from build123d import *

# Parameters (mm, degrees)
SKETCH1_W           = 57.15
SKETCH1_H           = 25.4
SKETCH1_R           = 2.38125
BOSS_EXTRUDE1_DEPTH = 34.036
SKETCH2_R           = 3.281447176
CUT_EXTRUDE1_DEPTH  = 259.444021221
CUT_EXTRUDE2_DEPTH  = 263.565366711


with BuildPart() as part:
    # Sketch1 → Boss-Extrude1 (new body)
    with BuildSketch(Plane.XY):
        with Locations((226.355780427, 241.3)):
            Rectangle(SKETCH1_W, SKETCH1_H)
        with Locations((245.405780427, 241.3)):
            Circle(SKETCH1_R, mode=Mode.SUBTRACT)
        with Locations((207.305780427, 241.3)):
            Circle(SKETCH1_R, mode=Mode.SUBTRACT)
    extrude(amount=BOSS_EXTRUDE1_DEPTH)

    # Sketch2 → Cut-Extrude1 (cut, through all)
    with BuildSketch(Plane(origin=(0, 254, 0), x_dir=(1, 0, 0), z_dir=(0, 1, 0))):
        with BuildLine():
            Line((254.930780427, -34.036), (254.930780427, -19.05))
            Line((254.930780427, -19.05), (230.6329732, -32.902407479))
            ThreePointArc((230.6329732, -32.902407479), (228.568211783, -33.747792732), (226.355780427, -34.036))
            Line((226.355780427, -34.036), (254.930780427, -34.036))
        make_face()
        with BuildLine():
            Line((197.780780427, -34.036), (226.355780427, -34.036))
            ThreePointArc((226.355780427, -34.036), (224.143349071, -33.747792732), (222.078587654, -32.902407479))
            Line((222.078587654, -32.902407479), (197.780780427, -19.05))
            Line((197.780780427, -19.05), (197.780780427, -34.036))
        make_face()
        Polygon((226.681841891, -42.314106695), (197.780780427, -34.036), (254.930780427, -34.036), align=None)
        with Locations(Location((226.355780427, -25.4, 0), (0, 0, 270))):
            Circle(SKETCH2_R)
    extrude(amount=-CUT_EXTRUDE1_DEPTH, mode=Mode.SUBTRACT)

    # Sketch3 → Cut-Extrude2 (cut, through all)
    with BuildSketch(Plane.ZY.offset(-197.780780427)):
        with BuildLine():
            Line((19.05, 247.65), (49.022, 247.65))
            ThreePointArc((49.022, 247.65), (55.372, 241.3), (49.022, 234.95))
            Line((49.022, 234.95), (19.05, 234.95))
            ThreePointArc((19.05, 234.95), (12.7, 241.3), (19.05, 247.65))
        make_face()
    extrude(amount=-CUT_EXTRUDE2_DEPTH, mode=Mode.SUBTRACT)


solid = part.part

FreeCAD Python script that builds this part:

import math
import FreeCAD as App
import Part
import Sketcher

V = App.Vector
Q = App.Units.Quantity


def add_polygon(sketch, points):
    """Adds a closed chain of lines whose ends are joined by coincident constraints."""
    first, n = sketch.GeometryCount, len(points)
    for a, b in zip(points, points[1:] + points[:1]):
        sketch.addGeometry(Part.LineSegment(App.Vector(*a, 0), App.Vector(*b, 0)), False)
    for i in range(n):
        sketch.addConstraint(Sketcher.Constraint("Coincident", first + i, 2, first + (i + 1) % n, 1))

doc = App.newDocument("Part")
body = doc.addObject("PartDesign::Body", "Body")

# Sketch on XY plane
sketch1 = body.newObject("Sketcher::SketchObject", "Sketch")
sketch1.AttachmentSupport = (doc.getObject("XY_Plane"), [""])
sketch1.MapMode = "FlatFace"
add_polygon(sketch1, [(197.8, 254), (197.8, 228.6), (254.9, 228.6), (254.9, 254)])  # lines 0-3
sketch1.addGeometry(Part.Circle(V(207.3, 241.3, 0), V(0, 0, 1), 2.4), False)  # 4
sketch1.addGeometry(Part.Circle(V(245.4, 241.3, 0), V(0, 0, 1), 2.4), False)  # 5
sketch1.addConstraint(Sketcher.Constraint("Vertical", 0))
sketch1.addConstraint(Sketcher.Constraint("Horizontal", 1))
sketch1.addConstraint(Sketcher.Constraint("Vertical", 2))
sketch1.addConstraint(Sketcher.Constraint("Horizontal", 3))
sketch1.addConstraint(Sketcher.Constraint("Equal", 4, 5))
sketch1.addConstraint(Sketcher.Constraint("Horizontal", 4, 3, 5, 3))
sketch1.addConstraint(Sketcher.Constraint("DistanceY", 0, 2, 0, 1, Q("1 in")))
sketch1.addConstraint(Sketcher.Constraint("Diameter", 4, Q("0.1875 in")))
sketch1.addConstraint(Sketcher.Constraint("DistanceY", -1, 1, 0, 2, Q("9 in")))
sketch1.addConstraint(Sketcher.Constraint("DistanceX", 1, 1, 1, 2, Q("2.25 in")))
sketch1.addConstraint(Sketcher.Constraint("DistanceY", -1, 1, 4, 3, Q("9.5 in")))
sketch1.addConstraint(Sketcher.Constraint("DistanceX", 4, 3, 5, 3, Q("1.5 in")))
sketch1.addConstraint(Sketcher.Constraint("DistanceX", 0, 2, 4, 3, Q("0.375 in")))
sketch1.addConstraint(Sketcher.Constraint("DistanceX", -1, 1, 4, 3, 207.30578))
pad1 = body.newObject("PartDesign::Pad", "Pad")
pad1.Profile = sketch1
pad1.Length = Q("1.34 in")

# Sketch on XZ plane
sketch2 = body.newObject("Sketcher::SketchObject", "Sketch001")
sketch2.AttachmentSupport = (doc.getObject("XZ_Plane"), [""])
sketch2.MapMode = "FlatFace"
sketch2.AttachmentOffset = App.Placement(V(0, 0, -10 * 25.4), App.Rotation())
sketch2.addGeometry(Part.LineSegment(V(254.9, 34, 0), V(254.9, 19.1, 0)), False)
sketch2.addGeometry(Part.LineSegment(V(254.9, 19.1, 0), V(230.6, 32.9, 0)), False)
sketch2.addGeometry(Part.ArcOfCircle(Part.Circle(V(226.4, 25.4, 0), V(0, 0, 1), 8.6), math.radians(60), math.radians(90)), False)
sketch2.addGeometry(Part.ArcOfCircle(Part.Circle(V(226.4, 25.4, 0), V(0, 0, 1), 8.6), math.radians(90), math.radians(120)), False)
sketch2.addGeometry(Part.LineSegment(V(222.1, 32.9, 0), V(197.8, 19.1, 0)), False)
sketch2.addGeometry(Part.LineSegment(V(197.8, 19.1, 0), V(197.8, 34, 0)), False)
sketch2.addGeometry(Part.LineSegment(V(197.8, 34, 0), V(226.7, 42.3, 0)), False)
sketch2.addGeometry(Part.LineSegment(V(226.7, 42.3, 0), V(254.9, 34, 0)), False)
sketch2.addGeometry(Part.Circle(V(226.4, 25.4, 0), V(0, 0, 1), 3.3), False)
sketch2.addConstraint(Sketcher.Constraint("Coincident", 0, 2, 1, 1))
sketch2.addConstraint(Sketcher.Constraint("Tangent", 1, 2, 2, 1))
sketch2.addConstraint(Sketcher.Constraint("Tangent", 2, 2, 3, 1))
sketch2.addConstraint(Sketcher.Constraint("Tangent", 3, 2, 4, 1))
sketch2.addConstraint(Sketcher.Constraint("Coincident", 4, 2, 5, 1))
sketch2.addConstraint(Sketcher.Constraint("Coincident", 5, 2, 6, 1))
sketch2.addConstraint(Sketcher.Constraint("Coincident", 6, 2, 7, 1))
sketch2.addConstraint(Sketcher.Constraint("Coincident", 7, 2, 0, 1))
sketch2.addConstraint(Sketcher.Constraint("Vertical", 0))
sketch2.addConstraint(Sketcher.Constraint("Vertical", 5))
sketch2.addConstraint(Sketcher.Constraint("Coincident", 8, 3, 2, 3))
sketch2.addConstraint(Sketcher.Constraint("Equal", 2, 3))
sketch2.addConstraint(Sketcher.Constraint("Horizontal", 1, 2, 3, 2))
sketch2.addConstraint(Sketcher.Constraint("Horizontal", 0, 2, 4, 2))
sketch2.addConstraint(Sketcher.Constraint("Horizontal", 2, 2, 5, 2))
sketch2.addConstraint(Sketcher.Constraint("Horizontal", 5, 2, 7, 2))
sketch2.addConstraint(Sketcher.Constraint("Vertical", 8, 3, 2, 2))
sketch2.addConstraint(Sketcher.Constraint("Radius", 2, Q("0.34 in")))
sketch2.addConstraint(Sketcher.Constraint("DistanceY", -1, 1, 2, 3, Q("1 in")))
sketch2.addConstraint(Sketcher.Constraint("DistanceY", 0, 2, 0, 1, Q("0.59 in")))
sketch2.addConstraint(Sketcher.Constraint("DistanceX", 2, 3, 0, 2, Q("1.125 in")))
sketch2.addConstraint(Sketcher.Constraint("Diameter", 8, 6.562894))
sketch2.addConstraint(Sketcher.Constraint("DistanceY", 1, 2, 6, 2, 9.411699))
sketch2.addConstraint(Sketcher.Constraint("Distance", 6, 30.06324))
sketch2.addConstraint(Sketcher.Constraint("DistanceX", -1, 1, 2, 3, 226.35578))
pocket1 = body.newObject("PartDesign::Pocket", "Pocket")
pocket1.Profile = sketch2
pocket1.Type = "ThroughAll"
pocket1.Reversed = True

# Sketch on YZ plane
sketch3 = body.newObject("Sketcher::SketchObject", "Sketch002")
sketch3.AttachmentSupport = (doc.getObject("YZ_Plane"), [""])
sketch3.MapMode = "FlatFace"
sketch3.AttachmentOffset = App.Placement(V(0, 0, 197.78078), App.Rotation())
sketch3.addGeometry(Part.LineSegment(V(248, 49, 0), V(248, 19, 0)), False)
sketch3.addGeometry(Part.ArcOfCircle(Part.Circle(V(241, 19, 0), V(0, 0, 1), 6), math.radians(180), math.radians(360)), False)
sketch3.addGeometry(Part.LineSegment(V(235, 19, 0), V(235, 49, 0)), False)
sketch3.addGeometry(Part.ArcOfCircle(Part.Circle(V(241, 49, 0), V(0, 0, 1), 6), math.radians(0), math.radians(180)), False)
sketch3.addConstraint(Sketcher.Constraint("Tangent", 0, 2, 1, 2))
sketch3.addConstraint(Sketcher.Constraint("Tangent", 1, 1, 2, 1))
sketch3.addConstraint(Sketcher.Constraint("Tangent", 2, 2, 3, 2))
sketch3.addConstraint(Sketcher.Constraint("Tangent", 3, 1, 0, 1))
sketch3.addConstraint(Sketcher.Constraint("Vertical", 0))
sketch3.addConstraint(Sketcher.Constraint("Vertical", 2))
sketch3.addConstraint(Sketcher.Constraint("Radius", 1, Q("0.25 in")))
sketch3.addConstraint(Sketcher.Constraint("DistanceY", 0, 2, 0, 1, Q("1.18 in")))
sketch3.addConstraint(Sketcher.Constraint("DistanceX", -1, 1, 1, 3, Q("9.5 in")))
sketch3.addConstraint(Sketcher.Constraint("DistanceY", -1, 1, 1, 3, Q("0.75 in")))
pocket2 = body.newObject("PartDesign::Pocket", "Pocket001")
pocket2.Profile = sketch3
pocket2.Type = "ThroughAll"
pocket2.Reversed = True

doc.recompute()
